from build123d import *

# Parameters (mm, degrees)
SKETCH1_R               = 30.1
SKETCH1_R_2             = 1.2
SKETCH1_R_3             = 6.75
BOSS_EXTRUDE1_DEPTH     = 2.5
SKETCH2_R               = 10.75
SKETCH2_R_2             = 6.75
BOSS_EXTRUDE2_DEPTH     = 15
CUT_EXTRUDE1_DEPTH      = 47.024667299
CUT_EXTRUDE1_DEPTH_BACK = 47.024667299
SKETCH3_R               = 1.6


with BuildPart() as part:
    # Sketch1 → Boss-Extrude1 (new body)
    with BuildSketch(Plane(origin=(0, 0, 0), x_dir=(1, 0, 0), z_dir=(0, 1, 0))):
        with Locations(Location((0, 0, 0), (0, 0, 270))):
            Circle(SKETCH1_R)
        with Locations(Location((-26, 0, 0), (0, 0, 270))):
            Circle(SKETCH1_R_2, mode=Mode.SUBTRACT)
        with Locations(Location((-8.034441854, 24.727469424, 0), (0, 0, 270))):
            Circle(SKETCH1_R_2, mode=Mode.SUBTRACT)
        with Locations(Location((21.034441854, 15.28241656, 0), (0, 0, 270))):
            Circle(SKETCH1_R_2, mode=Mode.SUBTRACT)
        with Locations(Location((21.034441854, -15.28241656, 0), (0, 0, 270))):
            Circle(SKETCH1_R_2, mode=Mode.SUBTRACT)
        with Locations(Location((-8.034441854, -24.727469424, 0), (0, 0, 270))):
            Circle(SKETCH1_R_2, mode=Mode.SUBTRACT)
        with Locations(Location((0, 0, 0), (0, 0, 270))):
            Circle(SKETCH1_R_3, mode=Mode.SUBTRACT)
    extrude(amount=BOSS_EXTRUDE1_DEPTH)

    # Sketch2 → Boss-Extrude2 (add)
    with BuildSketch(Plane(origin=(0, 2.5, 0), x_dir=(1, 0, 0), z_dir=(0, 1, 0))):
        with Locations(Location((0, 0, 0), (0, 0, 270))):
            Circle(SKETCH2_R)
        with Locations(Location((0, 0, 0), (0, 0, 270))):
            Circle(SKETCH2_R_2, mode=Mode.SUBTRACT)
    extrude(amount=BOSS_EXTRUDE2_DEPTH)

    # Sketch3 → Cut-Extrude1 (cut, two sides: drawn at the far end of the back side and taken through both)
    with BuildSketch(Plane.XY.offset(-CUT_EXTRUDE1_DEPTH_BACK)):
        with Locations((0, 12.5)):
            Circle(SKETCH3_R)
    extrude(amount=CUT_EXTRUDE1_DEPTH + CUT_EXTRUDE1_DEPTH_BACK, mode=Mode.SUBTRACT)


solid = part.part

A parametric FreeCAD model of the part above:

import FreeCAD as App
import Part
import Sketcher

V = App.Vector
Q = App.Units.Quantity

doc = App.newDocument("Part")
params = doc.addObject("Spreadsheet::Sheet", "Params")
for row, (alias, value) in enumerate([
    ("sketch1_diameter", "60.2 mm"),
    ("sketch1_diameter2", "2.4 mm"),
    ("sketch1_diameter3", "13.5 mm"),
    ("pad1_length", "2.5 mm"),
    ("sketch2_diameter", "21.5 mm"),
    ("sketch2_diameter2", "13.5 mm"),
    ("pad2_length", "15 mm"),
    ("sketch3_diameter", "3.2 mm"),
], start=1):
    params.set(f"A{row}", alias)
    params.set(f"B{row}", "=" + value)
    params.setAlias(f"B{row}", alias)

body = doc.addObject("PartDesign::Body", "Body")

sketch1 = doc.addObject("Sketcher::SketchObject", "Sketch")
body.addObject(sketch1)
sketch1.AttachmentSupport = (doc.XZ_Plane, [""])
sketch1.MapMode = "FlatFace"
sketch1.addGeometry(Part.Circle(V(0, 0, 0), V(0, 0, 1), 30.1), False)
sketch1.addGeometry(Part.Circle(V(-8, -24.7, 0), V(0, 0, 1), 1.2), False)
sketch1.addGeometry(Part.Circle(V(-26, 0, 0), V(0, 0, 1), 1.2), False)
sketch1.addGeometry(Part.Circle(V(-8, 24.7, 0), V(0, 0, 1), 1.2), False)
sketch1.addGeometry(Part.Circle(V(0, 0, 0), V(0, 0, 1), 6.8), False)
sketch1.addGeometry(Part.Circle(V(21, -15.3, 0), V(0, 0, 1), 1.2), False)
sketch1.addGeometry(Part.Circle(V(21, 15.3, 0), V(0, 0, 1), 1.2), False)
sketch1.addConstraint(Sketcher.Constraint("Coincident", 0, 3, -1, 1))
sketch1.addConstraint(Sketcher.Constraint("Coincident", 4, 3, -1, 1))
sketch1.addConstraint(Sketcher.Constraint("Equal", 1, 2))
sketch1.addConstraint(Sketcher.Constraint("Equal", 2, 3))
sketch1.addConstraint(Sketcher.Constraint("Equal", 3, 5))
sketch1.addConstraint(Sketcher.Constraint("Equal", 5, 6))
sketch1.addConstraint(Sketcher.Constraint("Symmetric", 1, 3, 3, 3, -1))
sketch1.addConstraint(Sketcher.Constraint("Symmetric", 5, 3, 6, 3, -1))
sketch1.addConstraint(Sketcher.Constraint("PointOnObject", 2, 3, -1))
sketch1.addConstraint(Sketcher.Constraint("Diameter", 0, Q("60.2 mm")))
sketch1.addConstraint(Sketcher.Constraint("Diameter", 1, Q("2.4 mm")))
sketch1.addConstraint(Sketcher.Constraint("Diameter", 4, Q("13.5 mm")))
sketch1.addConstraint(Sketcher.Constraint("DistanceX", 2, 3, -1, 1, Q("26 mm")))
sketch1.addConstraint(Sketcher.Constraint("DistanceX", 1, 3, -1, 1, Q("8.034442 mm")))
sketch1.addConstraint(Sketcher.Constraint("DistanceY", 1, 3, -1, 1, Q("24.727469 mm")))
sketch1.addConstraint(Sketcher.Constraint("DistanceX", -1, 1, 5, 3, Q("21.034442 mm")))
sketch1.addConstraint(Sketcher.Constraint("DistanceY", 5, 3, -1, 1, Q("15.282417 mm")))
sketch1.setExpression("Constraints[9]", "Params.sketch1_diameter")
sketch1.setExpression("Constraints[10]", "Params.sketch1_diameter2")
sketch1.setExpression("Constraints[11]", "Params.sketch1_diameter3")
pad1 = doc.addObject("PartDesign::Pad", "Pad")
body.addObject(pad1)
pad1.Profile = sketch1
pad1.setExpression("Length", "Params.pad1_length")
pad1.Reversed = True

sketch2 = doc.addObject("Sketcher::SketchObject", "Sketch001")
body.addObject(sketch2)
sketch2.AttachmentSupport = (doc.XZ_Plane, [""])
sketch2.MapMode = "FlatFace"
sketch2.AttachmentOffset = App.Placement(V(0, 0, -2.5), App.Rotation())
sketch2.addGeometry(Part.Circle(V(0, 0, 0), V(0, 0, 1), 11), False)
sketch2.addGeometry(Part.Circle(V(0, 0, 0), V(0, 0, 1), 7), False)
sketch2.addConstraint(Sketcher.Constraint("Coincident", 0, 3, -1, 1))
sketch2.addConstraint(Sketcher.Constraint("Coincident", 1, 3, -1, 1))
sketch2.addConstraint(Sketcher.Constraint("Diameter", 0, Q("21.5 mm")))
sketch2.addConstraint(Sketcher.Constraint("Diameter", 1, Q("13.5 mm")))
sketch2.setExpression("Constraints[2]", "Params.sketch2_diameter")
sketch2.setExpression("Constraints[3]", "Params.sketch2_diameter2")
pad2 = doc.addObject("PartDesign::Pad", "Pad001")
body.addObject(pad2)
pad2.Profile = sketch2
pad2.setExpression("Length", "Params.pad2_length")
pad2.Reversed = True

sketch3 = doc.addObject("Sketcher::SketchObject", "Sketch002")
body.addObject(sketch3)
sketch3.AttachmentSupport = (doc.XY_Plane, [""])
sketch3.MapMode = "FlatFace"
sketch3.addGeometry(Part.Circle(V(0, 12.5, 0), V(0, 0, 1), 1.6), False)
sketch3.addConstraint(Sketcher.Constraint("PointOnObject", 0, 3, -2))
sketch3.addConstraint(Sketcher.Constraint("Diameter", 0, Q("3.2 mm")))
sketch3.addConstraint(Sketcher.Constraint("DistanceY", -1, 1, 0, 3, Q("12.5 mm")))
sketch3.setExpression("Constraints[1]", "Params.sketch3_diameter")
pocket1 = doc.addObject("PartDesign::Pocket", "Pocket")
body.addObject(pocket1)
pocket1.Profile = sketch3
pocket1.Type = "ThroughAll"
pocket1.Midplane = True

doc.recompute()
